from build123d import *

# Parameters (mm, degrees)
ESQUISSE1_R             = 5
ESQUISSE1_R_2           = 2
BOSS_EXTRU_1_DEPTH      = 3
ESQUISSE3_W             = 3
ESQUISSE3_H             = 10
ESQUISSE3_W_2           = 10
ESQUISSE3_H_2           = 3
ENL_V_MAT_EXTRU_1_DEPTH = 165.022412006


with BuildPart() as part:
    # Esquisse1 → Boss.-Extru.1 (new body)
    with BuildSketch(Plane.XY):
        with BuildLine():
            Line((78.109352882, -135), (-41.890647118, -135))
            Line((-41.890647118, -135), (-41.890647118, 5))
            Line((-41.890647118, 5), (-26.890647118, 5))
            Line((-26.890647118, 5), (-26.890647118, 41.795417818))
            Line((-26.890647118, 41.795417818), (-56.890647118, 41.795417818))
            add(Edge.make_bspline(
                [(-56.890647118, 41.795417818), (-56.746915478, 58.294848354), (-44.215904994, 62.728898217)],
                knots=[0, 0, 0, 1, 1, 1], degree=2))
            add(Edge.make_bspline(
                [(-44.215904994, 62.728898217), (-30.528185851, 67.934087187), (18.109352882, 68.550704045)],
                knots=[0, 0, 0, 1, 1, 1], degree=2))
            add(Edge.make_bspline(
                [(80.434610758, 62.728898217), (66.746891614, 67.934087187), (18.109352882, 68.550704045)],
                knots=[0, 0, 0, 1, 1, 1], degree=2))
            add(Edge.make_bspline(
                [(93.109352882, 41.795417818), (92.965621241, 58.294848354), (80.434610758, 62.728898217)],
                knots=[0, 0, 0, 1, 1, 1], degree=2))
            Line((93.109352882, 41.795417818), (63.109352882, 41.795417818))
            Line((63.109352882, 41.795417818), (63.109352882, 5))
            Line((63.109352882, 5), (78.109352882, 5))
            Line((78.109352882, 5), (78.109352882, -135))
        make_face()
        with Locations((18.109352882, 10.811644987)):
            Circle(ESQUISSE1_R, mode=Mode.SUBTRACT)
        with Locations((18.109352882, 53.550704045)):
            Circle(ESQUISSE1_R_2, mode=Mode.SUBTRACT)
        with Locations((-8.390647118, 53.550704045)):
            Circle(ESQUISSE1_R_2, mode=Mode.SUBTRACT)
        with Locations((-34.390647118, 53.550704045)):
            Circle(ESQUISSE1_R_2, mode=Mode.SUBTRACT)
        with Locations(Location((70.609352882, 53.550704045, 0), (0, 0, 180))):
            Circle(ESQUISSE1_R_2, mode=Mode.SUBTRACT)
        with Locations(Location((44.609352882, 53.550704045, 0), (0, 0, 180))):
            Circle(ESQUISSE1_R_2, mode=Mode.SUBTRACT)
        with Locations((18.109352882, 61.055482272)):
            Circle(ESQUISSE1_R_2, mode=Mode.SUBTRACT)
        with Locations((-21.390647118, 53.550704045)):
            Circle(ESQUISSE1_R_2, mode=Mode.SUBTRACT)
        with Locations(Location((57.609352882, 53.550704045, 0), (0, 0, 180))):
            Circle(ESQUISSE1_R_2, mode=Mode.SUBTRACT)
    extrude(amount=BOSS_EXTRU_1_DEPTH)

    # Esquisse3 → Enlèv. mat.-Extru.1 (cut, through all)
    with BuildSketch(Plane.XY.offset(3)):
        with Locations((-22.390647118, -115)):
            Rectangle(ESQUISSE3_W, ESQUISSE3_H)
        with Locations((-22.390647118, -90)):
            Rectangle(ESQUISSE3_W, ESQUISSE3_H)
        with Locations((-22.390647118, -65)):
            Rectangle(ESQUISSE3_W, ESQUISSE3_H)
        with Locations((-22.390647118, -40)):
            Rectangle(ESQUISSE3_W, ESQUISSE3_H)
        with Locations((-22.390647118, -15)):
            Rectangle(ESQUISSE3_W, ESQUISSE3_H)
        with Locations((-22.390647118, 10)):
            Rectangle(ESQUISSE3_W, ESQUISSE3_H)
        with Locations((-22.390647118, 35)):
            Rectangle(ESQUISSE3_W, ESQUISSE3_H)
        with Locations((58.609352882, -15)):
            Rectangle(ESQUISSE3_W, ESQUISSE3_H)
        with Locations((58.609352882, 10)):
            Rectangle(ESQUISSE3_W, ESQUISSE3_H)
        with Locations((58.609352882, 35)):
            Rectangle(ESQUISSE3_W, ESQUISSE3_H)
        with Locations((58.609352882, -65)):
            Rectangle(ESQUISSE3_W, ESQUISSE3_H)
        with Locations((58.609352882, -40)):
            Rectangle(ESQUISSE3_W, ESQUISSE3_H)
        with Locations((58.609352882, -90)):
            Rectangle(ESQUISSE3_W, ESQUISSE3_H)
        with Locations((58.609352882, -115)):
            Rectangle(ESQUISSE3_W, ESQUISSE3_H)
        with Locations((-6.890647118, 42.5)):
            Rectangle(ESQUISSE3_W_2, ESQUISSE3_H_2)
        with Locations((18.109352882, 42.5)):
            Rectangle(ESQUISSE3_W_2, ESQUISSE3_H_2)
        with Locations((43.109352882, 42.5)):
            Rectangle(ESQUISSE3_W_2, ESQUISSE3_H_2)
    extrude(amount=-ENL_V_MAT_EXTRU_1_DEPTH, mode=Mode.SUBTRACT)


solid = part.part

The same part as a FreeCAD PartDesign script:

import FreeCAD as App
import Part
import Sketcher

V = App.Vector


def add_polygon(sketch, points):
    """Adds a closed chain of lines whose ends are joined by coincident constraints."""
    first, n = sketch.GeometryCount, len(points)
    for a, b in zip(points, points[1:] + points[:1]):
        sketch.addGeometry(Part.LineSegment(App.Vector(*a, 0), App.Vector(*b, 0)), False)
    for i in range(n):
        sketch.addConstraint(Sketcher.Constraint("Coincident", first + i, 2, first + (i + 1) % n, 1))

doc = App.newDocument("Part")
params = doc.addObject("Spreadsheet::Sheet", "Params")
for row, (alias, value) in enumerate([
    ("sketch1_diameter", "10 mm"),
    ("sketch1_diameter2", "4 mm"),
    ("sketch1_width", "120 mm"),
    ("sketch1_width2", "15 mm"),
    ("sketch1_height", "140 mm"),
    ("pad1_length", "3 mm"),
    ("sketch2_width", "3 mm"),
    ("sketch2_width2", "10 mm"),
], start=1):
    params.set(f"A{row}", alias)
    params.set(f"B{row}", "=" + value)
    params.setAlias(f"B{row}", alias)

body = doc.addObject("PartDesign::Body", "Body")

sketch1 = doc.addObject("Sketcher::SketchObject", "Sketch")
body.addObject(sketch1)
sketch1.AttachmentSupport = (doc.XY_Plane, [""])
sketch1.MapMode = "FlatFace"
sketch1.addGeometry(Part.LineSegment(V(-41.890647, -135, 0), V(78.109353, -135, 0)), False)
sketch1.addGeometry(Part.LineSegment(V(78.109353, -135, 0), V(78.109353, 5, 0)), False)
sketch1.addGeometry(Part.LineSegment(V(78.109353, 5, 0), V(63.109353, 5, 0)), False)
sketch1.addGeometry(Part.LineSegment(V(63.109353, 5, 0), V(63.109353, 41.795418, 0)), False)
sketch1.addGeometry(Part.LineSegment(V(63.109353, 41.795418, 0), V(93.109353, 41.795418, 0)), False)
sketch1.addGeometry(Part.BSplineCurve([V(93.109353, 41.795418, 0), V(92.965621, 58.294848, 0), V(80.434611, 62.728898, 0)], [3, 3], [0, 1], False, 2, [1, 1, 1], False), False)
sketch1.addGeometry(Part.BSplineCurve([V(80.434611, 62.728898, 0), V(66.746892, 67.934087, 0), V(18.109353, 68.550704, 0)], [3, 3], [0, 1], False, 2, [1, 1, 1], False), False)
sketch1.addGeometry(Part.BSplineCurve([V(-44.215905, 62.728898, 0), V(-30.528186, 67.934087, 0), V(18.109353, 68.550704, 0)], [3, 3], [0, 1], False, 2, [1, 1, 1], False), False)
sketch1.addGeometry(Part.BSplineCurve([V(-56.890647, 41.795418, 0), V(-56.746915, 58.294848, 0), V(-44.215905, 62.728898, 0)], [3, 3], [0, 1], False, 2, [1, 1, 1], False), False)
sketch1.addGeometry(Part.LineSegment(V(-56.890647, 41.795418, 0), V(-26.890647, 41.795418, 0)), False)
sketch1.addGeometry(Part.LineSegment(V(-26.890647, 41.795418, 0), V(-26.890647, 5, 0)), False)
sketch1.addGeometry(Part.LineSegment(V(-26.890647, 5, 0), V(-41.890647, 5, 0)), False)
sketch1.addGeometry(Part.LineSegment(V(-41.890647, 5, 0), V(-41.890647, -135, 0)), False)
sketch1.addGeometry(Part.Circle(V(18.109353, 10.811645, 0), V(0, 0, 1), 5), False)
sketch1.addGeometry(Part.Circle(V(70.609353, 53.550704, 0), V(0, 0, 1), 2), False)
sketch1.addGeometry(Part.Circle(V(57.609353, 53.550704, 0), V(0, 0, 1), 2), False)
sketch1.addGeometry(Part.Circle(V(44.609353, 53.550704, 0), V(0, 0, 1), 2), False)
sketch1.addGeometry(Part.Circle(V(18.109353, 53.550704, 0), V(0, 0, 1), 2), False)
sketch1.addGeometry(Part.Circle(V(18.109353, 61.055482, 0), V(0, 0, 1), 2), False)
sketch1.addGeometry(Part.Circle(V(-8.390647, 53.550704, 0), V(0, 0, 1), 2), False)
sketch1.addGeometry(Part.Circle(V(-21.390647, 53.550704, 0), V(0, 0, 1), 2), False)
sketch1.addGeometry(Part.Circle(V(-34.390647, 53.550704, 0), V(0, 0, 1), 2), False)
sketch1.addConstraint(Sketcher.Constraint("Block", 5))
sketch1.addConstraint(Sketcher.Constraint("Block", 6))
sketch1.addConstraint(Sketcher.Constraint("Block", 7))
sketch1.addConstraint(Sketcher.Constraint("Block", 8))
sketch1.addConstraint(Sketcher.Constraint("Coincident", 0, 2, 1, 1))
sketch1.addConstraint(Sketcher.Constraint("Coincident", 1, 2, 2, 1))
sketch1.addConstraint(Sketcher.Constraint("Coincident", 2, 2, 3, 1))
sketch1.addConstraint(Sketcher.Constraint("Coincident", 3, 2, 4, 1))
sketch1.addConstraint(Sketcher.Constraint("Coincident", 4, 2, 5, 1))
sketch1.addConstraint(Sketcher.Constraint("Coincident", 8, 1, 9, 1))
sketch1.addConstraint(Sketcher.Constraint("Coincident", 9, 2, 10, 1))
sketch1.addConstraint(Sketcher.Constraint("Coincident", 10, 2, 11, 1))
sketch1.addConstraint(Sketcher.Constraint("Coincident", 11, 2, 12, 1))
sketch1.addConstraint(Sketcher.Constraint("Coincident", 12, 2, 0, 1))
sketch1.addConstraint(Sketcher.Constraint("Horizontal", 0))
sketch1.addConstraint(Sketcher.Constraint("Vertical", 1))
sketch1.addConstraint(Sketcher.Constraint("Horizontal", 2))
sketch1.addConstraint(Sketcher.Constraint("Vertical", 3))
sketch1.addConstraint(Sketcher.Constraint("Horizontal", 4))
sketch1.addConstraint(Sketcher.Constraint("Horizontal", 9))
sketch1.addConstraint(Sketcher.Constraint("Vertical", 10))
sketch1.addConstraint(Sketcher.Constraint("Horizontal", 11))
sketch1.addConstraint(Sketcher.Constraint("Vertical", 12))
sketch1.addConstraint(Sketcher.Constraint("Equal", 14, 15))
sketch1.addConstraint(Sketcher.Constraint("Equal", 15, 16))
sketch1.addConstraint(Sketcher.Constraint("Equal", 16, 17))
sketch1.addConstraint(Sketcher.Constraint("Equal", 17, 18))
sketch1.addConstraint(Sketcher.Constraint("Equal", 18, 19))
sketch1.addConstraint(Sketcher.Constraint("Equal", 19, 20))
sketch1.addConstraint(Sketcher.Constraint("Equal", 20, 21))
sketch1.addConstraint(Sketcher.Constraint("Horizontal", 14, 3, 15, 3))
sketch1.addConstraint(Sketcher.Constraint("Horizontal", 15, 3, 16, 3))
sketch1.addConstraint(Sketcher.Constraint("Horizontal", 16, 3, 17, 3))
sketch1.addConstraint(Sketcher.Constraint("Horizontal", 17, 3, 19, 3))
sketch1.addConstraint(Sketcher.Constraint("Horizontal", 19, 3, 20, 3))
sketch1.addConstraint(Sketcher.Constraint("Horizontal", 20, 3, 21, 3))
sketch1.addConstraint(Sketcher.Constraint("Horizontal", 2, 2, 10, 2))
sketch1.addConstraint(Sketcher.Constraint("Vertical", 13, 3, 17, 3))
sketch1.addConstraint(Sketcher.Constraint("Vertical", 17, 3, 18, 3))
sketch1.addConstraint(Sketcher.Constraint("Equal", 4, 9))
sketch1.addConstraint(Sketcher.Constraint("Equal", 2, 11))
sketch1.addConstraint(Sketcher.Constraint("Diameter", 13, 10.0))
sketch1.addConstraint(Sketcher.Constraint("Diameter", 14, 4.0))
sketch1.addConstraint(Sketcher.Constraint("DistanceX", 0, 1, 0, 2, 120.0))
sketch1.addConstraint(Sketcher.Constraint("DistanceX", 2, 2, 2, 1, 15.0))
sketch1.addConstraint(Sketcher.Constraint("DistanceY", 1, 1, 1, 2, 140.0))
sketch1.addConstraint(Sketcher.Constraint("DistanceY", 0, 2, -1, 1, 135.0))
sketch1.addConstraint(Sketcher.Constraint("DistanceX", 15, 3, 14, 3, 13.0))
sketch1.addConstraint(Sketcher.Constraint("DistanceX", 16, 3, 15, 3, 13.0))
sketch1.addConstraint(Sketcher.Constraint("DistanceX", 19, 3, 16, 3, 53.0))
sketch1.addConstraint(Sketcher.Constraint("DistanceX", 20, 3, 19, 3, 13.0))
sketch1.addConstraint(Sketcher.Constraint("DistanceX", 21, 3, 20, 3, 13.0))
sketch1.addConstraint(Sketcher.Constraint("DistanceX", 13, 3, 0, 2, 60.0))
sketch1.addConstraint(Sketcher.Constraint("DistanceX", 13, 3, 14, 3, 52.5))
sketch1.addConstraint(Sketcher.Constraint("DistanceY", 13, 3, 14, 3, 42.739059))
sketch1.addConstraint(Sketcher.Constraint("DistanceY", 17, 3, 18, 3, 7.504778))
sketch1.addConstraint(Sketcher.Constraint("DistanceY", -1, 1, 13, 3, 10.811645))
sketch1.setExpression("Constraints[41]", "Params.sketch1_diameter")
sketch1.setExpression("Constraints[42]", "Params.sketch1_diameter2")
sketch1.setExpression("Constraints[43]", "Params.sketch1_width")
sketch1.setExpression("Constraints[44]", "Params.sketch1_width2")
sketch1.setExpression("Constraints[45]", "Params.sketch1_height")
pad1 = doc.addObject("PartDesign::Pad", "Pad")
body.addObject(pad1)
pad1.Profile = sketch1
pad1.setExpression("Length", "Params.pad1_length")

sketch2 = doc.addObject("Sketcher::SketchObject", "Sketch001")
body.addObject(sketch2)
sketch2.AttachmentSupport = (doc.XY_Plane, [""])
sketch2.MapMode = "FlatFace"
sketch2.AttachmentOffset = App.Placement(V(0, 0, 3), App.Rotation())
add_polygon(sketch2, [(-23.890647, -110), (-23.890647, -120), (-20.890647, -120), (-20.890647, -110)])
add_polygon(sketch2, [(-23.890647, -85), (-23.890647, -95), (-20.890647, -95), (-20.890647, -85)])
add_polygon(sketch2, [(-23.890647, -60), (-23.890647, -70), (-20.890647, -70), (-20.890647, -60)])
add_polygon(sketch2, [(-23.890647, -35), (-23.890647, -45), (-20.890647, -45), (-20.890647, -35)])
add_polygon(sketch2, [(-23.890647, -10), (-23.890647, -20), (-20.890647, -20), (-20.890647, -10)])
add_polygon(sketch2, [(-23.890647, 15), (-23.890647, 5), (-20.890647, 5), (-20.890647, 15)])
add_polygon(sketch2, [(-23.890647, 40), (-23.890647, 30), (-20.890647, 30), (-20.890647, 40)])
add_polygon(sketch2, [(57.109353, -10), (57.109353, -20), (60.109353, -20), (60.109353, -10)])
add_polygon(sketch2, [(57.109353, 15), (57.109353, 5), (60.109353, 5), (60.109353, 15)])
add_polygon(sketch2, [(57.109353, 40), (57.109353, 30), (60.109353, 30), (60.109353, 40)])
add_polygon(sketch2, [(57.109353, -60), (57.109353, -70), (60.109353, -70), (60.109353, -60)])
add_polygon(sketch2, [(57.109353, -35), (57.109353, -45), (60.109353, -45), (60.109353, -35)])
add_polygon(sketch2, [(57.109353, -85), (57.109353, -95), (60.109353, -95), (60.109353, -85)])
add_polygon(sketch2, [(57.109353, -110), (57.109353, -120), (60.109353, -120), (60.109353, -110)])
add_polygon(sketch2, [(-11.890647, 44), (-11.890647, 41), (-1.890647, 41), (-1.890647, 44)])
add_polygon(sketch2, [(13.109353, 44), (13.109353, 41), (23.109353, 41), (23.109353, 44)])
add_polygon(sketch2, [(38.109353, 44), (38.109353, 41), (48.109353, 41), (48.109353, 44)])
sketch2.addConstraint(Sketcher.Constraint("Vertical", 0))
sketch2.addConstraint(Sketcher.Constraint("Horizontal", 1))
sketch2.addConstraint(Sketcher.Constraint("Vertical", 2))
sketch2.addConstraint(Sketcher.Constraint("Horizontal", 3))
sketch2.addConstraint(Sketcher.Constraint("Vertical", 4))
sketch2.addConstraint(Sketcher.Constraint("Horizontal", 5))
sketch2.addConstraint(Sketcher.Constraint("Vertical", 6))
sketch2.addConstraint(Sketcher.Constraint("Horizontal", 7))
sketch2.addConstraint(Sketcher.Constraint("Vertical", 8))
sketch2.addConstraint(Sketcher.Constraint("Horizontal", 9))
sketch2.addConstraint(Sketcher.Constraint("Vertical", 10))
sketch2.addConstraint(Sketcher.Constraint("Horizontal", 11))
sketch2.addConstraint(Sketcher.Constraint("Vertical", 12))
sketch2.addConstraint(Sketcher.Constraint("Horizontal", 13))
sketch2.addConstraint(Sketcher.Constraint("Vertical", 14))
sketch2.addConstraint(Sketcher.Constraint("Horizontal", 15))
sketch2.addConstraint(Sketcher.Constraint("Vertical", 16))
sketch2.addConstraint(Sketcher.Constraint("Horizontal", 17))
sketch2.addConstraint(Sketcher.Constraint("Vertical", 18))
sketch2.addConstraint(Sketcher.Constraint("Horizontal", 19))
sketch2.addConstraint(Sketcher.Constraint("Vertical", 20))
sketch2.addConstraint(Sketcher.Constraint("Horizontal", 21))
sketch2.addConstraint(Sketcher.Constraint("Vertical", 22))
sketch2.addConstraint(Sketcher.Constraint("Horizontal", 23))
sketch2.addConstraint(Sketcher.Constraint("Vertical", 24))
sketch2.addConstraint(Sketcher.Constraint("Horizontal", 25))
sketch2.addConstraint(Sketcher.Constraint("Vertical", 26))
sketch2.addConstraint(Sketcher.Constraint("Horizontal", 27))
sketch2.addConstraint(Sketcher.Constraint("Vertical", 28))
sketch2.addConstraint(Sketcher.Constraint("Horizontal", 29))
sketch2.addConstraint(Sketcher.Constraint("Vertical", 30))
sketch2.addConstraint(Sketcher.Constraint("Horizontal", 31))
sketch2.addConstraint(Sketcher.Constraint("Vertical", 32))
sketch2.addConstraint(Sketcher.Constraint("Horizontal", 33))
sketch2.addConstraint(Sketcher.Constraint("Vertical", 34))
sketch2.addConstraint(Sketcher.Constraint("Horizontal", 35))
sketch2.addConstraint(Sketcher.Constraint("Vertical", 36))
sketch2.addConstraint(Sketcher.Constraint("Horizontal", 37))
sketch2.addConstraint(Sketcher.Constraint("Vertical", 38))
sketch2.addConstraint(Sketcher.Constraint("Horizontal", 39))
sketch2.addConstraint(Sketcher.Constraint("Vertical", 40))
sketch2.addConstraint(Sketcher.Constraint("Horizontal", 41))
sketch2.addConstraint(Sketcher.Constraint("Vertical", 42))
sketch2.addConstraint(Sketcher.Constraint("Horizontal", 43))
sketch2.addConstraint(Sketcher.Constraint("Vertical", 44))
sketch2.addConstraint(Sketcher.Constraint("Horizontal", 45))
sketch2.addConstraint(Sketcher.Constraint("Vertical", 46))
sketch2.addConstraint(Sketcher.Constraint("Horizontal", 47))
sketch2.addConstraint(Sketcher.Constraint("Vertical", 48))
sketch2.addConstraint(Sketcher.Constraint("Horizontal", 49))
sketch2.addConstraint(Sketcher.Constraint("Vertical", 50))
sketch2.addConstraint(Sketcher.Constraint("Horizontal", 51))
sketch2.addConstraint(Sketcher.Constraint("Vertical", 52))
sketch2.addConstraint(Sketcher.Constraint("Horizontal", 53))
sketch2.addConstraint(Sketcher.Constraint("Vertical", 54))
sketch2.addConstraint(Sketcher.Constraint("Horizontal", 55))
sketch2.addConstraint(Sketcher.Constraint("Vertical", 56))
sketch2.addConstraint(Sketcher.Constraint("Horizontal", 57))
sketch2.addConstraint(Sketcher.Constraint("Vertical", 58))
sketch2.addConstraint(Sketcher.Constraint("Horizontal", 59))
sketch2.addConstraint(Sketcher.Constraint("Vertical", 60))
sketch2.addConstraint(Sketcher.Constraint("Horizontal", 61))
sketch2.addConstraint(Sketcher.Constraint("Vertical", 62))
sketch2.addConstraint(Sketcher.Constraint("Horizontal", 63))
sketch2.addConstraint(Sketcher.Constraint("Vertical", 64))
sketch2.addConstraint(Sketcher.Constraint("Horizontal", 65))
sketch2.addConstraint(Sketcher.Constraint("Vertical", 66))
sketch2.addConstraint(Sketcher.Constraint("Horizontal", 67))
sketch2.addConstraint(Sketcher.Constraint("Horizontal", 17, 2, 28, 2))
sketch2.addConstraint(Sketcher.Constraint("Horizontal", 19, 2, 30, 2))
sketch2.addConstraint(Sketcher.Constraint("Horizontal", 21, 2, 32, 2))
sketch2.addConstraint(Sketcher.Constraint("Horizontal", 23, 2, 34, 2))
sketch2.addConstraint(Sketcher.Constraint("Horizontal", 25, 2, 36, 2))
sketch2.addConstraint(Sketcher.Constraint("Horizontal", 27, 2, 38, 2))
sketch2.addConstraint(Sketcher.Constraint("Horizontal", 9, 2, 40, 2))
sketch2.addConstraint(Sketcher.Constraint("Horizontal", 11, 2, 42, 2))
sketch2.addConstraint(Sketcher.Constraint("Horizontal", 13, 2, 44, 2))
sketch2.addConstraint(Sketcher.Constraint("Horizontal", 15, 2, 46, 2))
sketch2.addConstraint(Sketcher.Constraint("Horizontal", 5, 2, 48, 2))
sketch2.addConstraint(Sketcher.Constraint("Horizontal", 7, 2, 50, 2))
sketch2.addConstraint(Sketcher.Constraint("Horizontal", 1, 2, 52, 2))
sketch2.addConstraint(Sketcher.Constraint("Horizontal", 3, 2, 54, 2))
sketch2.addConstraint(Sketcher.Constraint("Horizontal", 57, 2, 60, 2))
sketch2.addConstraint(Sketcher.Constraint("Horizontal", 59, 2, 62, 2))
sketch2.addConstraint(Sketcher.Constraint("Horizontal", 61, 2, 64, 2))
sketch2.addConstraint(Sketcher.Constraint("Horizontal", 63, 2, 66, 2))
sketch2.addConstraint(Sketcher.Constraint("Vertical", 3, 2, 4, 2))
sketch2.addConstraint(Sketcher.Constraint("Vertical", 2, 2, 5, 2))
sketch2.addConstraint(Sketcher.Constraint("Vertical", 7, 2, 8, 2))
sketch2.addConstraint(Sketcher.Constraint("Vertical", 6, 2, 9, 2))
sketch2.addConstraint(Sketcher.Constraint("Vertical", 11, 2, 12, 2))
sketch2.addConstraint(Sketcher.Constraint("Vertical", 10, 2, 13, 2))
sketch2.addConstraint(Sketcher.Constraint("Vertical", 15, 2, 16, 2))
sketch2.addConstraint(Sketcher.Constraint("Vertical", 14, 2, 17, 2))
sketch2.addConstraint(Sketcher.Constraint("Vertical", 19, 2, 20, 2))
sketch2.addConstraint(Sketcher.Constraint("Vertical", 18, 2, 21, 2))
sketch2.addConstraint(Sketcher.Constraint("Vertical", 23, 2, 24, 2))
sketch2.addConstraint(Sketcher.Constraint("Vertical", 22, 2, 25, 2))
sketch2.addConstraint(Sketcher.Constraint("Vertical", 31, 2, 32, 2))
sketch2.addConstraint(Sketcher.Constraint("Vertical", 30, 2, 33, 2))
sketch2.addConstraint(Sketcher.Constraint("Vertical", 35, 2, 36, 2))
sketch2.addConstraint(Sketcher.Constraint("Vertical", 34, 2, 37, 2))
sketch2.addConstraint(Sketcher.Constraint("Vertical", 39, 2, 40, 2))
sketch2.addConstraint(Sketcher.Constraint("Vertical", 38, 2, 41, 2))
sketch2.addConstraint(Sketcher.Constraint("Vertical", 43, 2, 44, 2))
sketch2.addConstraint(Sketcher.Constraint("Vertical", 42, 2, 45, 2))
sketch2.addConstraint(Sketcher.Constraint("Vertical", 47, 2, 48, 2))
sketch2.addConstraint(Sketcher.Constraint("Vertical", 46, 2, 49, 2))
sketch2.addConstraint(Sketcher.Constraint("Vertical", 51, 2, 52, 2))
sketch2.addConstraint(Sketcher.Constraint("Vertical", 50, 2, 53, 2))
sketch2.addConstraint(Sketcher.Constraint("Equal", 27, 29))
sketch2.addConstraint(Sketcher.Constraint("Equal", 59, 61))
sketch2.addConstraint(Sketcher.Constraint("Equal", 63, 65))
sketch2.addConstraint(Sketcher.Constraint("Equal", 67, 0))
sketch2.addConstraint(Sketcher.Constraint("Equal", 2, 4))
sketch2.addConstraint(Sketcher.Constraint("Equal", 6, 8))
sketch2.addConstraint(Sketcher.Constraint("Equal", 10, 12))
sketch2.addConstraint(Sketcher.Constraint("Equal", 14, 16))
sketch2.addConstraint(Sketcher.Constraint("Equal", 18, 20))
sketch2.addConstraint(Sketcher.Constraint("Equal", 22, 24))
sketch2.addConstraint(Sketcher.Constraint("Equal", 55, 56))
sketch2.addConstraint(Sketcher.Constraint("DistanceX", 1, 1, 1, 2, 3.0))
sketch2.addConstraint(Sketcher.Constraint("DistanceX", 57, 1, 57, 2, 10.0))
sketch2.addConstraint(Sketcher.Constraint("DistanceY", 0, 2, -1, 1, 120.0))
sketch2.addConstraint(Sketcher.Constraint("DistanceY", 4, 2, -1, 1, 95.0))
sketch2.addConstraint(Sketcher.Constraint("DistanceY", 8, 2, -1, 1, 70.0))
sketch2.addConstraint(Sketcher.Constraint("DistanceY", 12, 2, -1, 1, 45.0))
sketch2.addConstraint(Sketcher.Constraint("DistanceY", 16, 2, -1, 1, 20.0))
sketch2.addConstraint(Sketcher.Constraint("DistanceY", -1, 1, 20, 2, 5.0))
sketch2.addConstraint(Sketcher.Constraint("DistanceY", -1, 1, 24, 2, 30.0))
sketch2.addConstraint(Sketcher.Constraint("DistanceY", -1, 1, 56, 2, 41.0))
sketch2.addConstraint(Sketcher.Constraint("DistanceX", 0, 2, -1, 1, 23.890647))
sketch2.addConstraint(Sketcher.Constraint("DistanceX", -1, 1, 28, 2, 57.109353))
sketch2.addConstraint(Sketcher.Constraint("DistanceX", 56, 2, -1, 1, 11.890647))
sketch2.addConstraint(Sketcher.Constraint("DistanceX", -1, 1, 60, 2, 13.109353))
sketch2.addConstraint(Sketcher.Constraint("DistanceX", -1, 1, 64, 2, 38.109353))
sketch2.setExpression("Constraints[189]", "Params.sketch2_width")
sketch2.setExpression("Constraints[190]", "Params.sketch2_width2")
pocket1 = doc.addObject("PartDesign::Pocket", "Pocket")
body.addObject(pocket1)
pocket1.Profile = sketch2
pocket1.Type = "ThroughAll"

doc.recompute()
